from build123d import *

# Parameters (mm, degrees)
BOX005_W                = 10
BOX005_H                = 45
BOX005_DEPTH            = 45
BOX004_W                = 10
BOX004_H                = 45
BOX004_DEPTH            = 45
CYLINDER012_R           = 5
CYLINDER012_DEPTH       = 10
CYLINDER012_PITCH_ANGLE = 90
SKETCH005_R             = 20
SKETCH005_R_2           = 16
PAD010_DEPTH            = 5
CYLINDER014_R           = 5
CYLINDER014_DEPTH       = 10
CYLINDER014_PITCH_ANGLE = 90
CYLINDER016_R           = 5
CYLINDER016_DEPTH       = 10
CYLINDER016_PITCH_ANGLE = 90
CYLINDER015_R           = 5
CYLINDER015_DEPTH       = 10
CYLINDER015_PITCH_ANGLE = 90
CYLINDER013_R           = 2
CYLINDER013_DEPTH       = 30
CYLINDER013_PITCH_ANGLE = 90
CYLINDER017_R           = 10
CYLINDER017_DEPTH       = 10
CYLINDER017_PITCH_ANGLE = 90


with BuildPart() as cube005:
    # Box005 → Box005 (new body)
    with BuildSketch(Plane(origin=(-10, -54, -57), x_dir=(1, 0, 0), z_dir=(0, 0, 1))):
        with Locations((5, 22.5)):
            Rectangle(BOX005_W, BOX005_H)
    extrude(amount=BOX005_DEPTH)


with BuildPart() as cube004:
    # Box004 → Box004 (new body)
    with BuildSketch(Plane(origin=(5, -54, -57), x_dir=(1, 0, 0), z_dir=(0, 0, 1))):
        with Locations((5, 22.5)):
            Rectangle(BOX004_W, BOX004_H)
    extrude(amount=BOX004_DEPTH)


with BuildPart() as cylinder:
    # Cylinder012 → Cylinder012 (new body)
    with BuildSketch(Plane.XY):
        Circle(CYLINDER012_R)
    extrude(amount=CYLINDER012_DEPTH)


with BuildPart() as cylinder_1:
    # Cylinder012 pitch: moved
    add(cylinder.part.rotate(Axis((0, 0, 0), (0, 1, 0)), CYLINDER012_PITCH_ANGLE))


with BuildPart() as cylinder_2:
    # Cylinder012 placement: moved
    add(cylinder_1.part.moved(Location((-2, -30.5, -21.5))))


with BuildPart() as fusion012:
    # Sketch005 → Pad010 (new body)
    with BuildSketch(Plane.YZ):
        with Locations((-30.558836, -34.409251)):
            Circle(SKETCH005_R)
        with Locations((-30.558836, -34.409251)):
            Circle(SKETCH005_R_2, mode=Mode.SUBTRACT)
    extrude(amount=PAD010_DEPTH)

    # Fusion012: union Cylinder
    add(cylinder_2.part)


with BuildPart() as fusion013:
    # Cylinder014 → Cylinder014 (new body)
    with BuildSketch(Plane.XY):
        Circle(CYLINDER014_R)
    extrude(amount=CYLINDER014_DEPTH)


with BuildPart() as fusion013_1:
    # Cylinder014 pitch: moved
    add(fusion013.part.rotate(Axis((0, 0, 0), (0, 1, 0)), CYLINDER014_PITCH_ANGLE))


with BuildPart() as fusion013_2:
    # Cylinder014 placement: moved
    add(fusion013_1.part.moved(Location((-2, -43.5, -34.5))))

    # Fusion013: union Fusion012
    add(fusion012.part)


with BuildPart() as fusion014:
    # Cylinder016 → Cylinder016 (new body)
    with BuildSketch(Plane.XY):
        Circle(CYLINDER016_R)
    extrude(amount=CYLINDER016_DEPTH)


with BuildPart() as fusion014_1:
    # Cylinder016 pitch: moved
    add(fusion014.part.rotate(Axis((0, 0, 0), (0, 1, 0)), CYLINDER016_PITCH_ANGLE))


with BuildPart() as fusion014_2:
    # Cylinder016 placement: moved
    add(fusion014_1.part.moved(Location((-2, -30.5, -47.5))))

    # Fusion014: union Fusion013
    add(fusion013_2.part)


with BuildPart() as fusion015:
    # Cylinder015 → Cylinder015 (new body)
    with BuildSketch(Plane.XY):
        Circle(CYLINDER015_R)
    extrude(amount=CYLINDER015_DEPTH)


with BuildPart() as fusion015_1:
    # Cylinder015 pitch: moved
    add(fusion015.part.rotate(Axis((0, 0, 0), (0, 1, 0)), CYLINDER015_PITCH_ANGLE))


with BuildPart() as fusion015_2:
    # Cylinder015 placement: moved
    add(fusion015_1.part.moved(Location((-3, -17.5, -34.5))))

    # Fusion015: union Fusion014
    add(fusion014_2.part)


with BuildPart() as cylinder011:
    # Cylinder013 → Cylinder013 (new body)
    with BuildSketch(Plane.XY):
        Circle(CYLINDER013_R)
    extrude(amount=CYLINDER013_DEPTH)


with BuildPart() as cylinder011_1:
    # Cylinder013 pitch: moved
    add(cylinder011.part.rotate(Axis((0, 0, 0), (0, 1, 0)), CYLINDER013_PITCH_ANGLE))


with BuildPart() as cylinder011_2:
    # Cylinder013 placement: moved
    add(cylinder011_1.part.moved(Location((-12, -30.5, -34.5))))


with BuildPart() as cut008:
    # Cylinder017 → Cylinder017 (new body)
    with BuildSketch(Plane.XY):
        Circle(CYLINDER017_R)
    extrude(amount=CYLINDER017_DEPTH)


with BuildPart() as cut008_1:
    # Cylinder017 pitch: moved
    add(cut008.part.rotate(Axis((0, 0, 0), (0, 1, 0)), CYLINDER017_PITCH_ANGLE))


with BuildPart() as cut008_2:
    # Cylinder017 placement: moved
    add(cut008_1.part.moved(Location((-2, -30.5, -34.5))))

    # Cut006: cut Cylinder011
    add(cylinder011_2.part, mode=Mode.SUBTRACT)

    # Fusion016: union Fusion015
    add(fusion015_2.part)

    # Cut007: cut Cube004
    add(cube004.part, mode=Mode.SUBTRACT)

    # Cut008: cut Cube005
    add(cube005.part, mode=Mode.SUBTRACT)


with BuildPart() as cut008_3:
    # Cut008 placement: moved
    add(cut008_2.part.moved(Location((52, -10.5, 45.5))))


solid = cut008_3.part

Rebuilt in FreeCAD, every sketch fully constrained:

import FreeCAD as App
import Part
import Sketcher
Q = App.Units.Quantity

doc = App.newDocument("Part")
params = doc.addObject("Spreadsheet::Sheet", "Params")
for row, (alias, value) in enumerate([
    ("sketch1_width", "10 mm"),
    ("sketch1_height", "45 mm"),
    ("pad1_length", "45 mm"),
    ("sketch2_width", "10 mm"),
    ("sketch2_height", "45 mm"),
    ("pad2_length", "45 mm"),
    ("sketch3_diameter", "10 mm"),
    ("pad3_length", "10 mm"),
    ("sketch4_diameter", "40 mm"),
    ("sketch4_diameter2", "32 mm"),
    ("pad4_length", "5 mm"),
    ("sketch5_diameter", "10 mm"),
    ("pad5_length", "10 mm"),
    ("sketch6_diameter", "10 mm"),
    ("pad6_length", "10 mm"),
    ("sketch7_diameter", "10 mm"),
    ("pad7_length", "10 mm"),
    ("sketch8_diameter", "4 mm"),
    ("pad8_length", "30 mm"),
    ("sketch9_diameter", "20 mm"),
    ("pad9_length", "10 mm"),
], start=1):
    params.set(f"A{row}", alias)
    params.set(f"B{row}", "=" + value)
    params.setAlias(f"B{row}", alias)

body = doc.addObject("PartDesign::Body", "Body")

sketch1 = body.newObject("Sketcher::SketchObject", "Sketch")
sketch1.AttachmentSupport = (doc.getObject("XY_Plane"), [""])
sketch1.MapMode = "FlatFace"
sketch1.AttachmentOffset = App.Placement(App.Vector(0, 0, -57), App.Rotation())
sketch1.addGeometry(Part.LineSegment(App.Vector(-10, -9, 0), App.Vector(-10, -54, 0)), False)
sketch1.addGeometry(Part.LineSegment(App.Vector(-10, -54, 0), App.Vector(0, -54, 0)), False)
sketch1.addGeometry(Part.LineSegment(App.Vector(0, -54, 0), App.Vector(0, -9, 0)), False)
sketch1.addGeometry(Part.LineSegment(App.Vector(0, -9, 0), App.Vector(-10, -9, 0)), False)
sketch1.addConstraint(Sketcher.Constraint("Coincident", 0, 2, 1, 1))
sketch1.addConstraint(Sketcher.Constraint("Coincident", 1, 2, 2, 1))
sketch1.addConstraint(Sketcher.Constraint("Coincident", 2, 2, 3, 1))
sketch1.addConstraint(Sketcher.Constraint("Coincident", 3, 2, 0, 1))
sketch1.addConstraint(Sketcher.Constraint("Vertical", 0))
sketch1.addConstraint(Sketcher.Constraint("Horizontal", 1))
sketch1.addConstraint(Sketcher.Constraint("Vertical", 2))
sketch1.addConstraint(Sketcher.Constraint("Horizontal", 3))
sketch1.addConstraint(Sketcher.Constraint("PointOnObject", 1, 2, -2))
sketch1.addConstraint(Sketcher.Constraint("DistanceX", 1, 1, 1, 2, Q("10 mm")))
sketch1.addConstraint(Sketcher.Constraint("DistanceY", 0, 2, 0, 1, Q("45 mm")))
sketch1.addConstraint(Sketcher.Constraint("DistanceY", 0, 2, -1, 1, Q("54 mm")))
sketch1.setExpression("Constraints[9]", "Params.sketch1_width")
sketch1.setExpression("Constraints[10]", "Params.sketch1_height")
pad1 = body.newObject("PartDesign::Pad", "Pad")
pad1.Profile = sketch1
pad1.setExpression("Length", "Params.pad1_length")
body2 = doc.addObject("PartDesign::Body", "Body001")

sketch2 = body2.newObject("Sketcher::SketchObject", "Sketch001")
sketch2.AttachmentSupport = (doc.getObject("XY_Plane001"), [""])
sketch2.MapMode = "FlatFace"
sketch2.AttachmentOffset = App.Placement(App.Vector(0, 0, -57), App.Rotation())
sketch2.addGeometry(Part.LineSegment(App.Vector(5, -9, 0), App.Vector(5, -54, 0)), False)
sketch2.addGeometry(Part.LineSegment(App.Vector(5, -54, 0), App.Vector(15, -54, 0)), False)
sketch2.addGeometry(Part.LineSegment(App.Vector(15, -54, 0), App.Vector(15, -9, 0)), False)
sketch2.addGeometry(Part.LineSegment(App.Vector(15, -9, 0), App.Vector(5, -9, 0)), False)
sketch2.addConstraint(Sketcher.Constraint("Coincident", 0, 2, 1, 1))
sketch2.addConstraint(Sketcher.Constraint("Coincident", 1, 2, 2, 1))
sketch2.addConstraint(Sketcher.Constraint("Coincident", 2, 2, 3, 1))
sketch2.addConstraint(Sketcher.Constraint("Coincident", 3, 2, 0, 1))
sketch2.addConstraint(Sketcher.Constraint("Vertical", 0))
sketch2.addConstraint(Sketcher.Constraint("Horizontal", 1))
sketch2.addConstraint(Sketcher.Constraint("Vertical", 2))
sketch2.addConstraint(Sketcher.Constraint("Horizontal", 3))
sketch2.addConstraint(Sketcher.Constraint("DistanceX", 1, 1, 1, 2, Q("10 mm")))
sketch2.addConstraint(Sketcher.Constraint("DistanceY", 0, 2, 0, 1, Q("45 mm")))
sketch2.addConstraint(Sketcher.Constraint("DistanceX", -1, 1, 0, 2, Q("5 mm")))
sketch2.addConstraint(Sketcher.Constraint("DistanceY", 0, 2, -1, 1, Q("54 mm")))
sketch2.setExpression("Constraints[8]", "Params.sketch2_width")
sketch2.setExpression("Constraints[9]", "Params.sketch2_height")
pad2 = body2.newObject("PartDesign::Pad", "Pad001")
pad2.Profile = sketch2
pad2.setExpression("Length", "Params.pad2_length")
body3 = doc.addObject("PartDesign::Body", "Body002")

sketch3 = body3.newObject("Sketcher::SketchObject", "Sketch002")
sketch3.AttachmentSupport = (doc.getObject("XY_Plane002"), [""])
sketch3.MapMode = "FlatFace"
sketch3.addGeometry(Part.Circle(App.Vector(0, 0, 0), App.Vector(0, 0, 1), 5), False)
sketch3.addConstraint(Sketcher.Constraint("Coincident", 0, 3, -1, 1))
sketch3.addConstraint(Sketcher.Constraint("Diameter", 0, Q("10 mm")))
sketch3.setExpression("Constraints[1]", "Params.sketch3_diameter")
pad3 = body3.newObject("PartDesign::Pad", "Pad002")
pad3.Profile = sketch3
pad3.setExpression("Length", "Params.pad3_length")
body4 = doc.addObject("PartDesign::Body", "Body003")
doc.recompute()

body3.Placement = App.Placement(App.Vector(0, 0, 0), App.Rotation(App.Vector(0, 1, 0), 90))
boolean = body4.newObject("PartDesign::Boolean", "Boolean")
boolean.Type = "Fuse"
boolean.addObjects([body3])
body5 = doc.addObject("PartDesign::Body", "Body004")
doc.recompute()

body4.Placement = App.Placement(App.Vector(-2, -30.5, -21.5), App.Rotation(App.Vector(0, 0, 1), 0))
boolean2 = body5.newObject("PartDesign::Boolean", "Boolean001")
boolean2.Type = "Fuse"
boolean2.addObjects([body4])
body6 = doc.addObject("PartDesign::Body", "Body005")

sketch4 = body6.newObject("Sketcher::SketchObject", "Sketch003")
sketch4.AttachmentSupport = (doc.getObject("YZ_Plane005"), [""])
sketch4.MapMode = "FlatFace"
sketch4.addGeometry(Part.Circle(App.Vector(-30.558836, -34.409251, 0), App.Vector(0, 0, 1), 20), False)
sketch4.addGeometry(Part.Circle(App.Vector(-30.558836, -34.409251, 0), App.Vector(0, 0, 1), 16), False)
sketch4.addConstraint(Sketcher.Constraint("Coincident", 1, 3, 0, 3))
sketch4.addConstraint(Sketcher.Constraint("Diameter", 0, Q("40 mm")))
sketch4.addConstraint(Sketcher.Constraint("Diameter", 1, Q("32 mm")))
sketch4.addConstraint(Sketcher.Constraint("DistanceY", 0, 3, -1, 1, Q("34.409251 mm")))
sketch4.addConstraint(Sketcher.Constraint("DistanceX", 0, 3, -1, 1, Q("30.558836 mm")))
sketch4.setExpression("Constraints[1]", "Params.sketch4_diameter")
sketch4.setExpression("Constraints[2]", "Params.sketch4_diameter2")
pad4 = body6.newObject("PartDesign::Pad", "Pad003")
pad4.Profile = sketch4
pad4.setExpression("Length", "Params.pad4_length")
doc.recompute()

boolean3 = body6.newObject("PartDesign::Boolean", "Boolean002")
boolean3.Type = "Fuse"
boolean3.addObjects([body5])
body7 = doc.addObject("PartDesign::Body", "Body006")

sketch5 = body7.newObject("Sketcher::SketchObject", "Sketch004")
sketch5.AttachmentSupport = (doc.getObject("XY_Plane006"), [""])
sketch5.MapMode = "FlatFace"
sketch5.addGeometry(Part.Circle(App.Vector(0, 0, 0), App.Vector(0, 0, 1), 5), False)
sketch5.addConstraint(Sketcher.Constraint("Coincident", 0, 3, -1, 1))
sketch5.addConstraint(Sketcher.Constraint("Diameter", 0, Q("10 mm")))
sketch5.setExpression("Constraints[1]", "Params.sketch5_diameter")
pad5 = body7.newObject("PartDesign::Pad", "Pad004")
pad5.Profile = sketch5
pad5.setExpression("Length", "Params.pad5_length")
body8 = doc.addObject("PartDesign::Body", "Body007")
doc.recompute()

body7.Placement = App.Placement(App.Vector(0, 0, 0), App.Rotation(App.Vector(0, 1, 0), 90))
boolean4 = body8.newObject("PartDesign::Boolean", "Boolean003")
boolean4.Type = "Fuse"
boolean4.addObjects([body7])
body9 = doc.addObject("PartDesign::Body", "Body008")
doc.recompute()

body8.Placement = App.Placement(App.Vector(-2, -43.5, -34.5), App.Rotation(App.Vector(0, 0, 1), 0))
boolean5 = body9.newObject("PartDesign::Boolean", "Boolean004")
boolean5.Type = "Fuse"
boolean5.addObjects([body8])
doc.recompute()

boolean6 = body9.newObject("PartDesign::Boolean", "Boolean005")
boolean6.Type = "Fuse"
boolean6.addObjects([body6])
body10 = doc.addObject("PartDesign::Body", "Body009")

sketch6 = body10.newObject("Sketcher::SketchObject", "Sketch005")
sketch6.AttachmentSupport = (doc.getObject("XY_Plane009"), [""])
sketch6.MapMode = "FlatFace"
sketch6.addGeometry(Part.Circle(App.Vector(0, 0, 0), App.Vector(0, 0, 1), 5), False)
sketch6.addConstraint(Sketcher.Constraint("Coincident", 0, 3, -1, 1))
sketch6.addConstraint(Sketcher.Constraint("Diameter", 0, Q("10 mm")))
sketch6.setExpression("Constraints[1]", "Params.sketch6_diameter")
pad6 = body10.newObject("PartDesign::Pad", "Pad005")
pad6.Profile = sketch6
pad6.setExpression("Length", "Params.pad6_length")
body11 = doc.addObject("PartDesign::Body", "Body010")
doc.recompute()

body10.Placement = App.Placement(App.Vector(0, 0, 0), App.Rotation(App.Vector(0, 1, 0), 90))
boolean7 = body11.newObject("PartDesign::Boolean", "Boolean006")
boolean7.Type = "Fuse"
boolean7.addObjects([body10])
body12 = doc.addObject("PartDesign::Body", "Body011")
doc.recompute()

body11.Placement = App.Placement(App.Vector(-2, -30.5, -47.5), App.Rotation(App.Vector(0, 0, 1), 0))
boolean8 = body12.newObject("PartDesign::Boolean", "Boolean007")
boolean8.Type = "Fuse"
boolean8.addObjects([body11])
doc.recompute()

boolean9 = body12.newObject("PartDesign::Boolean", "Boolean008")
boolean9.Type = "Fuse"
boolean9.addObjects([body9])
body13 = doc.addObject("PartDesign::Body", "Body012")

sketch7 = body13.newObject("Sketcher::SketchObject", "Sketch006")
sketch7.AttachmentSupport = (doc.getObject("XY_Plane012"), [""])
sketch7.MapMode = "FlatFace"
sketch7.addGeometry(Part.Circle(App.Vector(0, 0, 0), App.Vector(0, 0, 1), 5), False)
sketch7.addConstraint(Sketcher.Constraint("Coincident", 0, 3, -1, 1))
sketch7.addConstraint(Sketcher.Constraint("Diameter", 0, Q("10 mm")))
sketch7.setExpression("Constraints[1]", "Params.sketch7_diameter")
pad7 = body13.newObject("PartDesign::Pad", "Pad006")
pad7.Profile = sketch7
pad7.setExpression("Length", "Params.pad7_length")
body14 = doc.addObject("PartDesign::Body", "Body013")
doc.recompute()

body13.Placement = App.Placement(App.Vector(0, 0, 0), App.Rotation(App.Vector(0, 1, 0), 90))
boolean10 = body14.newObject("PartDesign::Boolean", "Boolean009")
boolean10.Type = "Fuse"
boolean10.addObjects([body13])
body15 = doc.addObject("PartDesign::Body", "Body014")
doc.recompute()

body14.Placement = App.Placement(App.Vector(-3, -17.5, -34.5), App.Rotation(App.Vector(0, 0, 1), 0))
boolean11 = body15.newObject("PartDesign::Boolean", "Boolean010")
boolean11.Type = "Fuse"
boolean11.addObjects([body14])
doc.recompute()

boolean12 = body15.newObject("PartDesign::Boolean", "Boolean011")
boolean12.Type = "Fuse"
boolean12.addObjects([body12])
body16 = doc.addObject("PartDesign::Body", "Body015")

sketch8 = body16.newObject("Sketcher::SketchObject", "Sketch007")
sketch8.AttachmentSupport = (doc.getObject("XY_Plane015"), [""])
sketch8.MapMode = "FlatFace"
sketch8.addGeometry(Part.Circle(App.Vector(0, 0, 0), App.Vector(0, 0, 1), 2), False)
sketch8.addConstraint(Sketcher.Constraint("Coincident", 0, 3, -1, 1))
sketch8.addConstraint(Sketcher.Constraint("Diameter", 0, Q("4 mm")))
sketch8.setExpression("Constraints[1]", "Params.sketch8_diameter")
pad8 = body16.newObject("PartDesign::Pad", "Pad007")
pad8.Profile = sketch8
pad8.setExpression("Length", "Params.pad8_length")
body17 = doc.addObject("PartDesign::Body", "Body016")
doc.recompute()

body16.Placement = App.Placement(App.Vector(0, 0, 0), App.Rotation(App.Vector(0, 1, 0), 90))
boolean13 = body17.newObject("PartDesign::Boolean", "Boolean012")
boolean13.Type = "Fuse"
boolean13.addObjects([body16])
body18 = doc.addObject("PartDesign::Body", "Body017")
doc.recompute()

body17.Placement = App.Placement(App.Vector(-12, -30.5, -34.5), App.Rotation(App.Vector(0, 0, 1), 0))
boolean14 = body18.newObject("PartDesign::Boolean", "Boolean013")
boolean14.Type = "Fuse"
boolean14.addObjects([body17])
body19 = doc.addObject("PartDesign::Body", "Body018")

sketch9 = body19.newObject("Sketcher::SketchObject", "Sketch008")
sketch9.AttachmentSupport = (doc.getObject("XY_Plane018"), [""])
sketch9.MapMode = "FlatFace"
sketch9.addGeometry(Part.Circle(App.Vector(0, 0, 0), App.Vector(0, 0, 1), 10), False)
sketch9.addConstraint(Sketcher.Constraint("Coincident", 0, 3, -1, 1))
sketch9.addConstraint(Sketcher.Constraint("Diameter", 0, Q("20 mm")))
sketch9.setExpression("Constraints[1]", "Params.sketch9_diameter")
pad9 = body19.newObject("PartDesign::Pad", "Pad008")
pad9.Profile = sketch9
pad9.setExpression("Length", "Params.pad9_length")
body20 = doc.addObject("PartDesign::Body", "Body019")
doc.recompute()

body19.Placement = App.Placement(App.Vector(0, 0, 0), App.Rotation(App.Vector(0, 1, 0), 90))
boolean15 = body20.newObject("PartDesign::Boolean", "Boolean014")
boolean15.Type = "Fuse"
boolean15.addObjects([body19])
body21 = doc.addObject("PartDesign::Body", "Body020")
doc.recompute()

body20.Placement = App.Placement(App.Vector(-2, -30.5, -34.5), App.Rotation(App.Vector(0, 0, 1), 0))
boolean16 = body21.newObject("PartDesign::Boolean", "Boolean015")
boolean16.Type = "Fuse"
boolean16.addObjects([body20])
doc.recompute()

boolean17 = body21.newObject("PartDesign::Boolean", "Boolean016")
boolean17.Type = "Cut"
boolean17.addObjects([body18])
doc.recompute()

boolean18 = body21.newObject("PartDesign::Boolean", "Boolean017")
boolean18.Type = "Fuse"
boolean18.addObjects([body15])
doc.recompute()

boolean19 = body21.newObject("PartDesign::Boolean", "Boolean018")
boolean19.Type = "Cut"
boolean19.addObjects([body2])
doc.recompute()

boolean20 = body21.newObject("PartDesign::Boolean", "Boolean019")
boolean20.Type = "Cut"
boolean20.addObjects([body])
body22 = doc.addObject("PartDesign::Body", "Body021")
doc.recompute()

body21.Placement = App.Placement(App.Vector(52, -10.5, 45.5), App.Rotation(App.Vector(0, 0, 1), 0))
boolean21 = body22.newObject("PartDesign::Boolean", "Boolean020")
boolean21.Type = "Fuse"
boolean21.addObjects([body21])

doc.recompute()
